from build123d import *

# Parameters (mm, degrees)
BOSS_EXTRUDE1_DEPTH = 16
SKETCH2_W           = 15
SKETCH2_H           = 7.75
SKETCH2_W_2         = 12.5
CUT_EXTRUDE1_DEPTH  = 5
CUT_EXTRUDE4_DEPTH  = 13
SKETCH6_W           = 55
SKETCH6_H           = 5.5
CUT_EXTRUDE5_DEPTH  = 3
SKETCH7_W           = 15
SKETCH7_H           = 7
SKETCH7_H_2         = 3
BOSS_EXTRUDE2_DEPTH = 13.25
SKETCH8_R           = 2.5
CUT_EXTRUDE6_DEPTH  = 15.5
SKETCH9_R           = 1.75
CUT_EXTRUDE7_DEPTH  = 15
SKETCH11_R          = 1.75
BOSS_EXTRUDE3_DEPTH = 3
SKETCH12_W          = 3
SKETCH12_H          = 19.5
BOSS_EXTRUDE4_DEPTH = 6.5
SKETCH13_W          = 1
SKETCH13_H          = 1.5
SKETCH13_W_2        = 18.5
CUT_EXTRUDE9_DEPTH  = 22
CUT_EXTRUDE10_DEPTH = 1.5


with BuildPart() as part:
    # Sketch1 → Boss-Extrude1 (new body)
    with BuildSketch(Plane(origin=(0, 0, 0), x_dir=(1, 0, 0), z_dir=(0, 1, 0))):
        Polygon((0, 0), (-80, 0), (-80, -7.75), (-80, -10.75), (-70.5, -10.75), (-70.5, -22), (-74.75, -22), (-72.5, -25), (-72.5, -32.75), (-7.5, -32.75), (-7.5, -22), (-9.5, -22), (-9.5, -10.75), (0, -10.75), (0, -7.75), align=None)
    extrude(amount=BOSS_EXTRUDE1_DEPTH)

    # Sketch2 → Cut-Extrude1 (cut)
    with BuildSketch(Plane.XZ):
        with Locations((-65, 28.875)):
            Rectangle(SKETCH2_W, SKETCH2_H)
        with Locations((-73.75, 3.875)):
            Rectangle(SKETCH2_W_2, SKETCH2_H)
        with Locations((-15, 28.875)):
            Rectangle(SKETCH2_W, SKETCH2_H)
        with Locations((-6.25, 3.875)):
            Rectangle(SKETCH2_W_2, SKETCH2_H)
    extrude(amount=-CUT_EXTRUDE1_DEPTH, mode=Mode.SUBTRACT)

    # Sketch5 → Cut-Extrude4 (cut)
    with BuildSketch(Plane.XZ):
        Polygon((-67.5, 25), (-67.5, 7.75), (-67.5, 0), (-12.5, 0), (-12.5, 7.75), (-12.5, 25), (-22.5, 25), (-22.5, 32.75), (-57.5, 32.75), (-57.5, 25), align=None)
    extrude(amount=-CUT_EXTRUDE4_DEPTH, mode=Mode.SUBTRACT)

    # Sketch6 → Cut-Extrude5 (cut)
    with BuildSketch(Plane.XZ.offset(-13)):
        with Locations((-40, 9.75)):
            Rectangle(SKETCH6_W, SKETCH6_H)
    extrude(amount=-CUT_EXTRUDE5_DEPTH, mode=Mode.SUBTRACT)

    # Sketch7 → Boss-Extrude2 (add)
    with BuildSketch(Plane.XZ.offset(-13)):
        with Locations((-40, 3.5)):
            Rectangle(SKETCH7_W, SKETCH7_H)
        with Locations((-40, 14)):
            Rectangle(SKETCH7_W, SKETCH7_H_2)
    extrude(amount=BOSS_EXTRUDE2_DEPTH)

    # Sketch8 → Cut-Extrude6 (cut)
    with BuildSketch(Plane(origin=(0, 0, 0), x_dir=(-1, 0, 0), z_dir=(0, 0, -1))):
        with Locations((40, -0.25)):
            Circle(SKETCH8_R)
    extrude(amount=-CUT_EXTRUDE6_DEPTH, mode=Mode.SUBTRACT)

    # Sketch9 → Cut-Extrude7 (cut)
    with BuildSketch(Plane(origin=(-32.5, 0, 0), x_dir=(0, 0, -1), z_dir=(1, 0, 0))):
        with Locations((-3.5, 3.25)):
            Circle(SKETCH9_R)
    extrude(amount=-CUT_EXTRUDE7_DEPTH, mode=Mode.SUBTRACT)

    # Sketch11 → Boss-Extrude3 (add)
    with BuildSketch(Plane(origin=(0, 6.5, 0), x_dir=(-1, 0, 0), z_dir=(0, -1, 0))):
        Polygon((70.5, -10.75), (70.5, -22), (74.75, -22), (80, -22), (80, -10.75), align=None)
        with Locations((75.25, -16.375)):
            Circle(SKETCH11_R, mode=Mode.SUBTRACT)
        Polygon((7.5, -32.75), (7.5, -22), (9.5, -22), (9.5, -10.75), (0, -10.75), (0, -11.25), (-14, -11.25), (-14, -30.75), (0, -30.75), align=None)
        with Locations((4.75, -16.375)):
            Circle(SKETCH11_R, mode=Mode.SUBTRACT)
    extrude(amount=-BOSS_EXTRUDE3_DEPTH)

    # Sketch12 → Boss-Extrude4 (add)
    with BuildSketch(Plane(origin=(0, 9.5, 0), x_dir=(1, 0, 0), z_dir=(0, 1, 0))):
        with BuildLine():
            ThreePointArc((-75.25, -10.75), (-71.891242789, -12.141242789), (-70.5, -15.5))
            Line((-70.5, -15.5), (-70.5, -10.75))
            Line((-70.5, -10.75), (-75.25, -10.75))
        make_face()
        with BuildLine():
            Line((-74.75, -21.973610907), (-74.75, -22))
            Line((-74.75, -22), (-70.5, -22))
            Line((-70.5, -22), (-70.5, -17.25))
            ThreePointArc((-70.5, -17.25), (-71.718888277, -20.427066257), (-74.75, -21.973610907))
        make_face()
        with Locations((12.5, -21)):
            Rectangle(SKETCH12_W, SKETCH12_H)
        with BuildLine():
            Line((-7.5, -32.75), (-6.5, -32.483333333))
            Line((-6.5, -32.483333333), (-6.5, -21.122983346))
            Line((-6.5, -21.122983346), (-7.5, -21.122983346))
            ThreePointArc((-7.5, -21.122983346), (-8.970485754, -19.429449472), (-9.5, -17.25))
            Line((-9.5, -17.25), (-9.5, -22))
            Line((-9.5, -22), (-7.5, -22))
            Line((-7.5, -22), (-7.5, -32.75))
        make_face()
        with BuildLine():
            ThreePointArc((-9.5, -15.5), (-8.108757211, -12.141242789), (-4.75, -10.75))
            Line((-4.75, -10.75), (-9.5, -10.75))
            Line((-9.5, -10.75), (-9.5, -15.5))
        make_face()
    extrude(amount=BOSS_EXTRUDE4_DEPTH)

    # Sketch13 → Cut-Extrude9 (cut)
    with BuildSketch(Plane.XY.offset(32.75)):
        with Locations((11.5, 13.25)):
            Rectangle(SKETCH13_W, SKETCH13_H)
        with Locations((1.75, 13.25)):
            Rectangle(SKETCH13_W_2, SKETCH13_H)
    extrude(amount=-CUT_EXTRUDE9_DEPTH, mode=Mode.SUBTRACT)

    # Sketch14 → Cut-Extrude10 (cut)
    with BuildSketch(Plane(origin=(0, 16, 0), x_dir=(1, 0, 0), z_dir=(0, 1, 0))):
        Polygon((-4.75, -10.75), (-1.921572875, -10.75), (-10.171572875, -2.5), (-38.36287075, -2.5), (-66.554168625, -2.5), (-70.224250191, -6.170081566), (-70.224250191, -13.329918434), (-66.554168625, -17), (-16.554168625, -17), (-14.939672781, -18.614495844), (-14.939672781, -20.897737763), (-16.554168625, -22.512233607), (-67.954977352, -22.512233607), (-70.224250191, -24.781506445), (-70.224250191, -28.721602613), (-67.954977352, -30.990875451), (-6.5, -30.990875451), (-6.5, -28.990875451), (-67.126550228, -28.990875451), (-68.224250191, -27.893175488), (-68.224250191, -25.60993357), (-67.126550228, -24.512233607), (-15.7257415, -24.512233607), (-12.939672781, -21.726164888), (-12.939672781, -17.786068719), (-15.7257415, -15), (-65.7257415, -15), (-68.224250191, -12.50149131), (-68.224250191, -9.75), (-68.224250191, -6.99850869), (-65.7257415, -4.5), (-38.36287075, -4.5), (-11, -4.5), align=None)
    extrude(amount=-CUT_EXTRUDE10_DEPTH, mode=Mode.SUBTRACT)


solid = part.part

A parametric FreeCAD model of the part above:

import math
import FreeCAD as App
import Part
import Sketcher

V = App.Vector
Q = App.Units.Quantity


def add_polygon(sketch, points):
    """Adds a closed chain of lines whose ends are joined by coincident constraints."""
    first, n = sketch.GeometryCount, len(points)
    for a, b in zip(points, points[1:] + points[:1]):
        sketch.addGeometry(Part.LineSegment(App.Vector(*a, 0), App.Vector(*b, 0)), False)
    for i in range(n):
        sketch.addConstraint(Sketcher.Constraint("Coincident", first + i, 2, first + (i + 1) % n, 1))

doc = App.newDocument("Part")
body = doc.addObject("PartDesign::Body", "Body")

sketch1 = body.newObject("Sketcher::SketchObject", "Sketch")
sketch1.AttachmentSupport = (doc.getObject("XZ_Plane"), [""])
sketch1.MapMode = "FlatFace"
add_polygon(sketch1, [(0, 0), (-80, 0), (-80, 10.75), (-70.5, 10.75), (-70.5, 22), (-74.75, 22), (-72.5, 25), (-72.5, 32.75), (-7.5, 32.75), (-7.5, 22), (-9.5, 22), (-9.5, 10.75), (0, 10.75)])
sketch1.addConstraint(Sketcher.Constraint("Horizontal", 0))
sketch1.addConstraint(Sketcher.Constraint("Vertical", 1))
sketch1.addConstraint(Sketcher.Constraint("Horizontal", 2))
sketch1.addConstraint(Sketcher.Constraint("Vertical", 3))
sketch1.addConstraint(Sketcher.Constraint("Horizontal", 4))
sketch1.addConstraint(Sketcher.Constraint("Vertical", 6))
sketch1.addConstraint(Sketcher.Constraint("Horizontal", 7))
sketch1.addConstraint(Sketcher.Constraint("Vertical", 8))
sketch1.addConstraint(Sketcher.Constraint("Horizontal", 9))
sketch1.addConstraint(Sketcher.Constraint("Vertical", 10))
sketch1.addConstraint(Sketcher.Constraint("Horizontal", 11))
sketch1.addConstraint(Sketcher.Constraint("Vertical", 12))
sketch1.addConstraint(Sketcher.Constraint("Coincident", 12, 2, -1, 1))
sketch1.addConstraint(Sketcher.Constraint("Horizontal", 4, 2, 8, 2))
sketch1.addConstraint(Sketcher.Constraint("Horizontal", 2, 2, 10, 2))
sketch1.addConstraint(Sketcher.Constraint("Equal", 2, 11))
sketch1.addConstraint(Sketcher.Constraint("Equal", 1, 8))
sketch1.addConstraint(Sketcher.Constraint("DistanceX", 0, 2, 0, 1, Q("80 mm")))
sketch1.addConstraint(Sketcher.Constraint("DistanceX", 7, 1, 7, 2, Q("65 mm")))
sketch1.addConstraint(Sketcher.Constraint("DistanceX", 9, 2, 9, 1, Q("2 mm")))
sketch1.addConstraint(Sketcher.Constraint("DistanceX", 2, 1, 2, 2, Q("9.5 mm")))
sketch1.addConstraint(Sketcher.Constraint("DistanceY", -1, 1, 3, 2, Q("22 mm")))
sketch1.addConstraint(Sketcher.Constraint("DistanceY", -1, 1, 5, 2, Q("25 mm")))
sketch1.addConstraint(Sketcher.Constraint("DistanceX", 4, 2, 4, 1, Q("4.25 mm")))
sketch1.addConstraint(Sketcher.Constraint("DistanceY", 1, 1, 1, 2, Q("10.75 mm")))
pad1 = body.newObject("PartDesign::Pad", "Pad")
pad1.Profile = sketch1
pad1.Length = 16
pad1.Reversed = True

sketch2 = body.newObject("Sketcher::SketchObject", "Sketch001")
sketch2.AttachmentSupport = (doc.getObject("XZ_Plane"), [""])
sketch2.MapMode = "FlatFace"
add_polygon(sketch2, [(-72.5, 32.75), (-72.5, 25), (-57.5, 25), (-57.5, 32.75)])
add_polygon(sketch2, [(-80, 7.75), (-80, 0), (-67.5, 0), (-67.5, 7.75)])
add_polygon(sketch2, [(-22.5, 32.75), (-22.5, 25), (-7.5, 25), (-7.5, 32.75)])
add_polygon(sketch2, [(-12.5, 7.75), (-12.5, 0), (0, 0), (0, 7.75)])
sketch2.addConstraint(Sketcher.Constraint("Vertical", 0))
sketch2.addConstraint(Sketcher.Constraint("Horizontal", 1))
sketch2.addConstraint(Sketcher.Constraint("Vertical", 2))
sketch2.addConstraint(Sketcher.Constraint("Horizontal", 3))
sketch2.addConstraint(Sketcher.Constraint("Vertical", 4))
sketch2.addConstraint(Sketcher.Constraint("Horizontal", 5))
sketch2.addConstraint(Sketcher.Constraint("Vertical", 6))
sketch2.addConstraint(Sketcher.Constraint("Horizontal", 7))
sketch2.addConstraint(Sketcher.Constraint("Vertical", 8))
sketch2.addConstraint(Sketcher.Constraint("Horizontal", 9))
sketch2.addConstraint(Sketcher.Constraint("Vertical", 10))
sketch2.addConstraint(Sketcher.Constraint("Horizontal", 11))
sketch2.addConstraint(Sketcher.Constraint("Vertical", 12))
sketch2.addConstraint(Sketcher.Constraint("Horizontal", 13))
sketch2.addConstraint(Sketcher.Constraint("Vertical", 14))
sketch2.addConstraint(Sketcher.Constraint("Horizontal", 15))
sketch2.addConstraint(Sketcher.Constraint("Coincident", 13, 2, -1, 1))
sketch2.addConstraint(Sketcher.Constraint("PointOnObject", 4, 2, -1))
sketch2.addConstraint(Sketcher.Constraint("Horizontal", 1, 2, 8, 2))
sketch2.addConstraint(Sketcher.Constraint("Horizontal", 3, 2, 10, 2))
sketch2.addConstraint(Sketcher.Constraint("Horizontal", 7, 2, 14, 2))
sketch2.addConstraint(Sketcher.Constraint("Equal", 3, 9))
sketch2.addConstraint(Sketcher.Constraint("Equal", 7, 13))
sketch2.addConstraint(Sketcher.Constraint("Equal", 2, 4))
sketch2.addConstraint(Sketcher.Constraint("DistanceX", 1, 1, 1, 2, Q("15 mm")))
sketch2.addConstraint(Sketcher.Constraint("DistanceX", 5, 1, 5, 2, Q("12.5 mm")))
sketch2.addConstraint(Sketcher.Constraint("DistanceY", -1, 1, 0, 2, Q("25 mm")))
sketch2.addConstraint(Sketcher.Constraint("DistanceX", 4, 2, -1, 1, Q("80 mm")))
sketch2.addConstraint(Sketcher.Constraint("DistanceX", 0, 2, 5, 2, Q("5 mm")))
sketch2.addConstraint(Sketcher.Constraint("DistanceX", 1, 2, 8, 2, Q("35 mm")))
sketch2.addConstraint(Sketcher.Constraint("DistanceY", 0, 2, 0, 1, Q("7.75 mm")))
pocket1 = body.newObject("PartDesign::Pocket", "Pocket")
pocket1.Profile = sketch2
pocket1.Length = 5

sketch3 = body.newObject("Sketcher::SketchObject", "Sketch002")
sketch3.AttachmentSupport = (doc.getObject("XZ_Plane"), [""])
sketch3.MapMode = "FlatFace"
add_polygon(sketch3, [(-67.5, 25), (-67.5, 0), (-12.5, 0), (-12.5, 25), (-22.5, 25), (-22.5, 32.75), (-57.5, 32.75), (-57.5, 25)])
sketch3.addConstraint(Sketcher.Constraint("Vertical", 0))
sketch3.addConstraint(Sketcher.Constraint("Horizontal", 1))
sketch3.addConstraint(Sketcher.Constraint("Vertical", 2))
sketch3.addConstraint(Sketcher.Constraint("Horizontal", 3))
sketch3.addConstraint(Sketcher.Constraint("Vertical", 4))
sketch3.addConstraint(Sketcher.Constraint("Horizontal", 5))
sketch3.addConstraint(Sketcher.Constraint("Vertical", 6))
sketch3.addConstraint(Sketcher.Constraint("Horizontal", 7))
sketch3.addConstraint(Sketcher.Constraint("PointOnObject", 0, 2, -1))
sketch3.addConstraint(Sketcher.Constraint("Horizontal", 3, 2, 6, 2))
sketch3.addConstraint(Sketcher.Constraint("Equal", 3, 7))
sketch3.addConstraint(Sketcher.Constraint("DistanceX", 1, 1, 1, 2, Q("55 mm")))
sketch3.addConstraint(Sketcher.Constraint("DistanceX", 3, 2, 3, 1, Q("10 mm")))
sketch3.addConstraint(Sketcher.Constraint("DistanceY", 0, 2, 0, 1, Q("25 mm")))
sketch3.addConstraint(Sketcher.Constraint("DistanceY", 4, 1, 4, 2, Q("7.75 mm")))
sketch3.addConstraint(Sketcher.Constraint("DistanceX", 0, 2, -1, 1, Q("67.5 mm")))
pocket2 = body.newObject("PartDesign::Pocket", "Pocket001")
pocket2.Profile = sketch3
pocket2.Length = 13

sketch4 = body.newObject("Sketcher::SketchObject", "Sketch003")
sketch4.AttachmentSupport = (doc.getObject("XZ_Plane"), [""])
sketch4.MapMode = "FlatFace"
sketch4.AttachmentOffset = App.Placement(V(0, 0, -13), App.Rotation())
add_polygon(sketch4, [(-67.5, 12.5), (-67.5, 7), (-12.5, 7), (-12.5, 12.5)])
sketch4.addConstraint(Sketcher.Constraint("Vertical", 0))
sketch4.addConstraint(Sketcher.Constraint("Horizontal", 1))
sketch4.addConstraint(Sketcher.Constraint("Vertical", 2))
sketch4.addConstraint(Sketcher.Constraint("Horizontal", 3))
sketch4.addConstraint(Sketcher.Constraint("DistanceX", 1, 1, 1, 2, Q("55 mm")))
sketch4.addConstraint(Sketcher.Constraint("DistanceY", 0, 2, 0, 1, Q("5.5 mm")))
sketch4.addConstraint(Sketcher.Constraint("DistanceY", -1, 1, 0, 2, Q("7 mm")))
sketch4.addConstraint(Sketcher.Constraint("DistanceX", 0, 2, -1, 1, Q("67.5 mm")))
pocket3 = body.newObject("PartDesign::Pocket", "Pocket002")
pocket3.Profile = sketch4
pocket3.Length = 3

sketch5 = body.newObject("Sketcher::SketchObject", "Sketch004")
sketch5.AttachmentSupport = (doc.getObject("XZ_Plane"), [""])
sketch5.MapMode = "FlatFace"
sketch5.AttachmentOffset = App.Placement(V(0, 0, -13), App.Rotation())
add_polygon(sketch5, [(-47.5, 7), (-47.5, 0), (-32.5, 0), (-32.5, 7)])
add_polygon(sketch5, [(-47.5, 15.5), (-47.5, 12.5), (-32.5, 12.5), (-32.5, 15.5)])
sketch5.addConstraint(Sketcher.Constraint("Vertical", 0))
sketch5.addConstraint(Sketcher.Constraint("Horizontal", 1))
sketch5.addConstraint(Sketcher.Constraint("Vertical", 2))
sketch5.addConstraint(Sketcher.Constraint("Horizontal", 3))
sketch5.addConstraint(Sketcher.Constraint("Vertical", 4))
sketch5.addConstraint(Sketcher.Constraint("Horizontal", 5))
sketch5.addConstraint(Sketcher.Constraint("Vertical", 6))
sketch5.addConstraint(Sketcher.Constraint("Horizontal", 7))
sketch5.addConstraint(Sketcher.Constraint("PointOnObject", 0, 2, -1))
sketch5.addConstraint(Sketcher.Constraint("Vertical", 3, 2, 4, 2))
sketch5.addConstraint(Sketcher.Constraint("Vertical", 2, 2, 5, 2))
sketch5.addConstraint(Sketcher.Constraint("DistanceX", 1, 1, 1, 2, Q("15 mm")))
sketch5.addConstraint(Sketcher.Constraint("DistanceY", 0, 2, 0, 1, Q("7 mm")))
sketch5.addConstraint(Sketcher.Constraint("DistanceY", 4, 2, 4, 1, Q("3 mm")))
sketch5.addConstraint(Sketcher.Constraint("DistanceX", 0, 2, -1, 1, Q("47.5 mm")))
sketch5.addConstraint(Sketcher.Constraint("DistanceY", -1, 1, 4, 2, Q("12.5 mm")))
pad2 = body.newObject("PartDesign::Pad", "Pad001")
pad2.Profile = sketch5
pad2.Length = 13.25

sketch6 = body.newObject("Sketcher::SketchObject", "Sketch005")
sketch6.AttachmentSupport = (doc.getObject("XY_Plane"), [""])
sketch6.MapMode = "FlatFace"
sketch6.addGeometry(Part.Circle(V(-40, -0.25, 0), V(0, 0, 1), 2.5), False)
sketch6.addConstraint(Sketcher.Constraint("Diameter", 0, Q("5 mm")))
sketch6.addConstraint(Sketcher.Constraint("DistanceX", 0, 3, -1, 1, Q("40 mm")))
sketch6.addConstraint(Sketcher.Constraint("DistanceY", 0, 3, -1, 1, Q("0.25 mm")))
pocket4 = body.newObject("PartDesign::Pocket", "Pocket003")
pocket4.Profile = sketch6
pocket4.Length = 15.5
pocket4.Reversed = True

sketch7 = body.newObject("Sketcher::SketchObject", "Sketch006")
sketch7.AttachmentSupport = (doc.getObject("YZ_Plane"), [""])
sketch7.MapMode = "FlatFace"
sketch7.AttachmentOffset = App.Placement(V(0, 0, -32.5), App.Rotation())
sketch7.addGeometry(Part.Circle(V(3.25, 3.5, 0), V(0, 0, 1), 1.75), False)
sketch7.addConstraint(Sketcher.Constraint("Diameter", 0, Q("3.5 mm")))
sketch7.addConstraint(Sketcher.Constraint("DistanceY", -1, 1, 0, 3, Q("3.5 mm")))
sketch7.addConstraint(Sketcher.Constraint("DistanceX", -1, 1, 0, 3, Q("3.25 mm")))
pocket5 = body.newObject("PartDesign::Pocket", "Pocket004")
pocket5.Profile = sketch7
pocket5.Length = 15

sketch8 = body.newObject("Sketcher::SketchObject", "Sketch007")
sketch8.AttachmentSupport = (doc.getObject("XZ_Plane"), [""])
sketch8.MapMode = "FlatFace"
sketch8.AttachmentOffset = App.Placement(V(0, 0, -6.5), App.Rotation())
add_polygon(sketch8, [(-70.5, 10.75), (-70.5, 22), (-80, 22), (-80, 10.75)])
sketch8.addGeometry(Part.Circle(V(-75.25, 16.375, 0), V(0, 0, 1), 1.75), False)
add_polygon(sketch8, [(-7.5, 32.75), (-7.5, 22), (-9.5, 22), (-9.5, 10.75), (0, 10.75), (0, 11.25), (14, 11.25), (14, 30.75), (0, 30.75)])
sketch8.addGeometry(Part.Circle(V(-4.75, 16.375, 0), V(0, 0, 1), 1.75), False)
sketch8.addConstraint(Sketcher.Constraint("Vertical", 0))
sketch8.addConstraint(Sketcher.Constraint("Horizontal", 1))
sketch8.addConstraint(Sketcher.Constraint("Vertical", 2))
sketch8.addConstraint(Sketcher.Constraint("Horizontal", 3))
sketch8.addConstraint(Sketcher.Constraint("Vertical", 5))
sketch8.addConstraint(Sketcher.Constraint("Horizontal", 6))
sketch8.addConstraint(Sketcher.Constraint("Vertical", 7))
sketch8.addConstraint(Sketcher.Constraint("Horizontal", 8))
sketch8.addConstraint(Sketcher.Constraint("Vertical", 9))
sketch8.addConstraint(Sketcher.Constraint("Horizontal", 10))
sketch8.addConstraint(Sketcher.Constraint("Vertical", 11))
sketch8.addConstraint(Sketcher.Constraint("Horizontal", 12))
sketch8.addConstraint(Sketcher.Constraint("Equal", 4, 14))
sketch8.addConstraint(Sketcher.Constraint("PointOnObject", 8, 2, -2))
sketch8.addConstraint(Sketcher.Constraint("PointOnObject", 12, 2, -2))
sketch8.addConstraint(Sketcher.Constraint("Horizontal", 4, 3, 14, 3))
sketch8.addConstraint(Sketcher.Constraint("Horizontal", 1, 2, 5, 2))
sketch8.addConstraint(Sketcher.Constraint("Horizontal", 3, 2, 7, 2))
sketch8.addConstraint(Sketcher.Constraint("Equal", 3, 8))
sketch8.addConstraint(Sketcher.Constraint("Diameter", 4, Q("3.5 mm")))
sketch8.addConstraint(Sketcher.Constraint("DistanceX", 6, 2, 6, 1, Q("2 mm")))
sketch8.addConstraint(Sketcher.Constraint("DistanceX", 10, 1, 10, 2, Q("14 mm")))
sketch8.addConstraint(Sketcher.Constraint("DistanceX", 1, 2, 1, 1, Q("9.5 mm")))
sketch8.addConstraint(Sketcher.Constraint("DistanceY", 9, 1, 9, 2, Q("0.5 mm")))
sketch8.addConstraint(Sketcher.Constraint("DistanceY", 11, 1, 11, 2, Q("19.5 mm")))
sketch8.addConstraint(Sketcher.Constraint("DistanceY", -1, 1, 0, 2, Q("22 mm")))
sketch8.addConstraint(Sketcher.Constraint("DistanceX", 1, 2, -1, 1, Q("80 mm")))
sketch8.addConstraint(Sketcher.Constraint("DistanceY", 12, 2, 13, 2, Q("2 mm")))
sketch8.addConstraint(Sketcher.Constraint("DistanceY", 0, 1, 0, 2, Q("11.25 mm")))
sketch8.addConstraint(Sketcher.Constraint("DistanceX", 4, 3, 14, 3, Q("70.5 mm")))
sketch8.addConstraint(Sketcher.Constraint("DistanceX", 4, 3, -1, 1, Q("75.25 mm")))
sketch8.addConstraint(Sketcher.Constraint("DistanceY", -1, 1, 4, 3, Q("16.375 mm")))
pad3 = body.newObject("PartDesign::Pad", "Pad002")
pad3.Profile = sketch8
pad3.Length = 3
pad3.Reversed = True

sketch9 = body.newObject("Sketcher::SketchObject", "Sketch008")
sketch9.AttachmentSupport = (doc.getObject("XZ_Plane"), [""])
sketch9.MapMode = "FlatFace"
sketch9.AttachmentOffset = App.Placement(V(0, 0, -9.5), App.Rotation())
sketch9.addGeometry(Part.ArcOfCircle(Part.Circle(V(-75.25, 15.5, 0), V(0, 0, 1), 4.75), math.radians(-90), math.radians(0)), False)
sketch9.addGeometry(Part.LineSegment(V(-70.5, 15.5, 0), V(-70.5, 10.75, 0)), False)
sketch9.addGeometry(Part.LineSegment(V(-70.5, 10.75, 0), V(-75.25, 10.75, 0)), False)
sketch9.addGeometry(Part.LineSegment(V(-74.75, 21.973611, 0), V(-74.75, 22, 0)), False)
sketch9.addGeometry(Part.LineSegment(V(-74.75, 22, 0), V(-70.5, 22, 0)), False)
sketch9.addGeometry(Part.LineSegment(V(-70.5, 22, 0), V(-70.5, 17.25, 0)), False)
sketch9.addGeometry(Part.ArcOfCircle(Part.Circle(V(-75.25, 17.25, 0), V(0, 0, 1), 4.75), math.radians(0), math.radians(83.957672)), False)
add_polygon(sketch9, [(11, 11.25), (11, 30.75), (14, 30.75), (14, 11.25)])
sketch9.addGeometry(Part.LineSegment(V(-7.5, 32.75, 0), V(-6.5, 32.483333, 0)), False)
sketch9.addGeometry(Part.LineSegment(V(-6.5, 32.483333, 0), V(-6.5, 21.122983, 0)), False)
sketch9.addGeometry(Part.LineSegment(V(-6.5, 21.122983, 0), V(-7.5, 21.122983, 0)), False)
sketch9.addGeometry(Part.ArcOfCircle(Part.Circle(V(-4.75, 17.25, 0), V(0, 0, 1), 4.75), math.radians(125.37654), math.radians(180)), False)
sketch9.addGeometry(Part.LineSegment(V(-9.5, 17.25, 0), V(-9.5, 22, 0)), False)
sketch9.addGeometry(Part.LineSegment(V(-9.5, 22, 0), V(-7.5, 22, 0)), False)
sketch9.addGeometry(Part.LineSegment(V(-7.5, 22, 0), V(-7.5, 32.75, 0)), False)
sketch9.addGeometry(Part.ArcOfCircle(Part.Circle(V(-4.75, 15.5, 0), V(0, 0, 1), 4.75), math.radians(180), math.radians(270)), False)
sketch9.addGeometry(Part.LineSegment(V(-4.75, 10.75, 0), V(-9.5, 10.75, 0)), False)
sketch9.addGeometry(Part.LineSegment(V(-9.5, 10.75, 0), V(-9.5, 15.5, 0)), False)
sketch9.addConstraint(Sketcher.Constraint("Tangent", 0, 2, 1, 1))
sketch9.addConstraint(Sketcher.Constraint("Coincident", 1, 2, 2, 1))
sketch9.addConstraint(Sketcher.Constraint("Tangent", 2, 2, 0, 1))
sketch9.addConstraint(Sketcher.Constraint("Coincident", 3, 2, 4, 1))
sketch9.addConstraint(Sketcher.Constraint("Coincident", 4, 2, 5, 1))
sketch9.addConstraint(Sketcher.Constraint("Tangent", 5, 2, 6, 1))
sketch9.addConstraint(Sketcher.Constraint("Coincident", 6, 2, 3, 1))
sketch9.addConstraint(Sketcher.Constraint("Coincident", 11, 2, 12, 1))
sketch9.addConstraint(Sketcher.Constraint("Coincident", 12, 2, 13, 1))
sketch9.addConstraint(Sketcher.Constraint("Coincident", 13, 2, 14, 1))
sketch9.addConstraint(Sketcher.Constraint("Tangent", 14, 2, 15, 1))
sketch9.addConstraint(Sketcher.Constraint("Coincident", 15, 2, 16, 1))
sketch9.addConstraint(Sketcher.Constraint("Coincident", 16, 2, 17, 1))
sketch9.addConstraint(Sketcher.Constraint("Coincident", 17, 2, 11, 1))
sketch9.addConstraint(Sketcher.Constraint("Tangent", 18, 2, 19, 1))
sketch9.addConstraint(Sketcher.Constraint("Coincident", 19, 2, 20, 1))
sketch9.addConstraint(Sketcher.Constraint("Tangent", 20, 2, 18, 1))
sketch9.addConstraint(Sketcher.Constraint("Vertical", 1))
sketch9.addConstraint(Sketcher.Constraint("Horizontal", 2))
sketch9.addConstraint(Sketcher.Constraint("Vertical", 3))
sketch9.addConstraint(Sketcher.Constraint("Horizontal", 4))
sketch9.addConstraint(Sketcher.Constraint("Vertical", 5))
sketch9.addConstraint(Sketcher.Constraint("Vertical", 7))
sketch9.addConstraint(Sketcher.Constraint("Horizontal", 8))
sketch9.addConstraint(Sketcher.Constraint("Vertical", 9))
sketch9.addConstraint(Sketcher.Constraint("Horizontal", 10))
sketch9.addConstraint(Sketcher.Constraint("Vertical", 12))
sketch9.addConstraint(Sketcher.Constraint("Horizontal", 13))
sketch9.addConstraint(Sketcher.Constraint("Vertical", 15))
sketch9.addConstraint(Sketcher.Constraint("Horizontal", 16))
sketch9.addConstraint(Sketcher.Constraint("Vertical", 17))
sketch9.addConstraint(Sketcher.Constraint("Horizontal", 19))
sketch9.addConstraint(Sketcher.Constraint("Vertical", 20))
sketch9.addConstraint(Sketcher.Constraint("Equal", 0, 6))
sketch9.addConstraint(Sketcher.Constraint("Equal", 6, 14))
sketch9.addConstraint(Sketcher.Constraint("Equal", 14, 18))
sketch9.addConstraint(Sketcher.Constraint("Horizontal", 6, 3, 14, 3))
sketch9.addConstraint(Sketcher.Constraint("Horizontal", 0, 3, 18, 3))
sketch9.addConstraint(Sketcher.Constraint("Horizontal", 4, 2, 15, 2))
sketch9.addConstraint(Sketcher.Constraint("Vertical", 0, 3, 6, 3))
sketch9.addConstraint(Sketcher.Constraint("Vertical", 14, 3, 18, 3))
sketch9.addConstraint(Sketcher.Constraint("Vertical", 13, 2, 16, 2))
sketch9.addConstraint(Sketcher.Constraint("Equal", 1, 5))
sketch9.addConstraint(Sketcher.Constraint("DistanceX", 8, 1, 8, 2, Q("3 mm")))
sketch9.addConstraint(Sketcher.Constraint("DistanceX", 13, 2, 13, 1, Q("1 mm")))
sketch9.addConstraint(Sketcher.Constraint("DistanceX", 16, 1, 16, 2, Q("2 mm")))
sketch9.addConstraint(Sketcher.Constraint("Radius", 0, Q("4.75 mm")))
sketch9.addConstraint(Sketcher.Constraint("DistanceY", 7, 1, 7, 2, Q("19.5 mm")))
sketch9.addConstraint(Sketcher.Constraint("DistanceY", -1, 1, 3, 2, Q("22 mm")))
sketch9.addConstraint(Sketcher.Constraint("DistanceX", -1, 1, 7, 2, Q("11 mm")))
sketch9.addConstraint(Sketcher.Constraint("DistanceY", 9, 2, 14, 3, Q("6 mm")))
sketch9.addConstraint(Sketcher.Constraint("DistanceX", 4, 1, 4, 2, Q("4.25 mm")))
sketch9.addConstraint(Sketcher.Constraint("DistanceY", 17, 1, 17, 2, Q("10.75 mm")))
sketch9.addConstraint(Sketcher.Constraint("DistanceY", -1, 1, 0, 3, Q("15.5 mm")))
sketch9.addConstraint(Sketcher.Constraint("DistanceX", 0, 2, -1, 1, Q("70.5 mm")))
sketch9.addConstraint(Sketcher.Constraint("DistanceX", 11, 2, -1, 1, Q("6.5 mm")))
sketch9.addConstraint(Sketcher.Constraint("DistanceY", 12, 2, 12, 1, Q("11.36035 mm")))
pad4 = body.newObject("PartDesign::Pad", "Pad003")
pad4.Profile = sketch9
pad4.Length = 6.5
pad4.Reversed = True

sketch10 = body.newObject("Sketcher::SketchObject", "Sketch009")
sketch10.AttachmentSupport = (doc.getObject("XY_Plane"), [""])
sketch10.MapMode = "FlatFace"
sketch10.AttachmentOffset = App.Placement(V(0, 0, 32.75), App.Rotation())
add_polygon(sketch10, [(12, 12.5), (12, 14), (-7.5, 14), (-7.5, 12.5)])
sketch10.addConstraint(Sketcher.Constraint("Vertical", 0))
sketch10.addConstraint(Sketcher.Constraint("Horizontal", 1))
sketch10.addConstraint(Sketcher.Constraint("Vertical", 2))
sketch10.addConstraint(Sketcher.Constraint("Horizontal", 3))
sketch10.addConstraint(Sketcher.Constraint("DistanceX", 1, 2, 1, 1, Q("19.5 mm")))
sketch10.addConstraint(Sketcher.Constraint("DistanceY", 0, 1, 0, 2, Q("1.5 mm")))
sketch10.addConstraint(Sketcher.Constraint("DistanceX", -1, 1, 0, 2, Q("12 mm")))
sketch10.addConstraint(Sketcher.Constraint("DistanceY", -1, 1, 0, 2, Q("14 mm")))
pocket6 = body.newObject("PartDesign::Pocket", "Pocket005")
pocket6.Profile = sketch10
pocket6.Length = 22

sketch11 = body.newObject("Sketcher::SketchObject", "Sketch010")
sketch11.AttachmentSupport = (doc.getObject("XZ_Plane"), [""])
sketch11.MapMode = "FlatFace"
sketch11.AttachmentOffset = App.Placement(V(0, 0, -16), App.Rotation())
add_polygon(sketch11, [(-4.75, 10.75), (-1.921573, 10.75), (-10.171573, 2.5), (-66.554169, 2.5), (-70.22425, 6.170082), (-70.22425, 13.329918), (-66.554169, 17), (-16.554169, 17), (-14.939673, 18.614496), (-14.939673, 20.897738), (-16.554169, 22.512234), (-67.954977, 22.512234), (-70.22425, 24.781506), (-70.22425, 28.721603), (-67.954977, 30.990875), (-6.5, 30.990875), (-6.5, 28.990875), (-67.12655, 28.990875), (-68.22425, 27.893175), (-68.22425, 25.609934), (-67.12655, 24.512234), (-15.725741, 24.512234), (-12.939673, 21.726165), (-12.939673, 17.786069), (-15.725741, 15), (-65.725741, 15), (-68.22425, 12.501491), (-68.22425, 6.998509), (-65.725741, 4.5), (-11, 4.5)])
sketch11.addConstraint(Sketcher.Constraint("Horizontal", 0))
sketch11.addConstraint(Sketcher.Constraint("Horizontal", 2))
sketch11.addConstraint(Sketcher.Constraint("Vertical", 4))
sketch11.addConstraint(Sketcher.Constraint("Horizontal", 6))
sketch11.addConstraint(Sketcher.Constraint("Vertical", 8))
sketch11.addConstraint(Sketcher.Constraint("Horizontal", 10))
sketch11.addConstraint(Sketcher.Constraint("Vertical", 12))
sketch11.addConstraint(Sketcher.Constraint("Horizontal", 14))
sketch11.addConstraint(Sketcher.Constraint("Vertical", 15))
sketch11.addConstraint(Sketcher.Constraint("Horizontal", 16))
sketch11.addConstraint(Sketcher.Constraint("Vertical", 18))
sketch11.addConstraint(Sketcher.Constraint("Horizontal", 20))
sketch11.addConstraint(Sketcher.Constraint("Vertical", 22))
sketch11.addConstraint(Sketcher.Constraint("Horizontal", 24))
sketch11.addConstraint(Sketcher.Constraint("Vertical", 26))
sketch11.addConstraint(Sketcher.Constraint("Horizontal", 28))
sketch11.addConstraint(Sketcher.Constraint("Perpendicular", 1, 3))
sketch11.addConstraint(Sketcher.Constraint("Perpendicular", 3, 5))
sketch11.addConstraint(Sketcher.Constraint("Parallel", 5, 7))
sketch11.addConstraint(Sketcher.Constraint("Perpendicular", 7, 9))
sketch11.addConstraint(Sketcher.Constraint("Parallel", 9, 11))
sketch11.addConstraint(Sketcher.Constraint("Perpendicular", 11, 13))
sketch11.addConstraint(Sketcher.Constraint("Parallel", 13, 17))
sketch11.addConstraint(Sketcher.Constraint("Perpendicular", 17, 19))
sketch11.addConstraint(Sketcher.Constraint("Parallel", 19, 21))
sketch11.addConstraint(Sketcher.Constraint("Perpendicular", 21, 23))
sketch11.addConstraint(Sketcher.Constraint("Parallel", 23, 25))
sketch11.addConstraint(Sketcher.Constraint("Perpendicular", 25, 27))
sketch11.addConstraint(Sketcher.Constraint("Perpendicular", 27, 29))
sketch11.addConstraint(Sketcher.Constraint("Vertical", 2, 2, 5, 2))
sketch11.addConstraint(Sketcher.Constraint("Vertical", 6, 2, 9, 2))
sketch11.addConstraint(Sketcher.Constraint("Vertical", 4, 2, 11, 2))
sketch11.addConstraint(Sketcher.Constraint("Vertical", 10, 2, 13, 2))
sketch11.addConstraint(Sketcher.Constraint("Vertical", 16, 2, 19, 2))
sketch11.addConstraint(Sketcher.Constraint("Vertical", 20, 2, 23, 2))
sketch11.addConstraint(Sketcher.Constraint("Vertical", 18, 2, 25, 2))
sketch11.addConstraint(Sketcher.Constraint("Vertical", 24, 2, 27, 2))
sketch11.addConstraint(Sketcher.Constraint("Equal", 10, 20))
sketch11.addConstraint(Sketcher.Constraint("Equal", 6, 24))
sketch11.addConstraint(Sketcher.Constraint("Equal", 8, 18))
sketch11.addConstraint(Sketcher.Constraint("Equal", 12, 22))
sketch11.addConstraint(Sketcher.Constraint("Equal", 3, 5))
sketch11.addConstraint(Sketcher.Constraint("DistanceX", 6, 1, 6, 2, Q("50 mm")))
sketch11.addConstraint(Sketcher.Constraint("DistanceY", 15, 2, 15, 1, Q("2 mm")))
sketch11.addConstraint(Sketcher.Constraint("DistanceY", -1, 1, 5, 2, Q("17 mm")))
sketch11.addConstraint(Sketcher.Constraint("DistanceY", -1, 1, 23, 2, Q("15 mm")))
sketch11.addConstraint(Sketcher.Constraint("DistanceX", 28, 2, -1, 1, Q("11 mm")))
sketch11.addConstraint(Sketcher.Constraint("DistanceX", 12, 2, 17, 2, Q("2 mm")))
sketch11.addConstraint(Sketcher.Constraint("DistanceY", 10, 2, 19, 2, Q("2 mm")))
sketch11.addConstraint(Sketcher.Constraint("DistanceY", 2, 2, 27, 2, Q("2 mm")))
sketch11.addConstraint(Sketcher.Constraint("DistanceY", -1, 1, 1, 2, Q("2.5 mm")))
sketch11.addConstraint(Sketcher.Constraint("DistanceX", 14, 2, -1, 1, Q("6.5 mm")))
sketch11.addConstraint(Sketcher.Constraint("DistanceY", -1, 1, 0, 2, Q("10.75 mm")))
sketch11.addConstraint(Sketcher.Constraint("DistanceX", 10, 2, 10, 1, Q("51.400809 mm")))
sketch11.addConstraint(Sketcher.Constraint("DistanceX", 16, 2, 16, 1, Q("60.62655 mm")))
sketch11.addConstraint(Sketcher.Constraint("DistanceY", 8, 1, 8, 2, Q("2.283242 mm")))
sketch11.addConstraint(Sketcher.Constraint("DistanceX", 7, 2, 0, 2, Q("13.0181 mm")))
sketch11.addConstraint(Sketcher.Constraint("DistanceX", 12, 2, 16, 2, Q("3.0977 mm")))
sketch11.addConstraint(Sketcher.Constraint("Distance", 3, Q("5.190279 mm")))
sketch11.addConstraint(Sketcher.Constraint("Distance", 7, Q("2.283242 mm")))
pocket7 = body.newObject("PartDesign::Pocket", "Pocket006")
pocket7.Profile = sketch11
pocket7.Length = 1.5
pocket7.Reversed = True

doc.recompute()
